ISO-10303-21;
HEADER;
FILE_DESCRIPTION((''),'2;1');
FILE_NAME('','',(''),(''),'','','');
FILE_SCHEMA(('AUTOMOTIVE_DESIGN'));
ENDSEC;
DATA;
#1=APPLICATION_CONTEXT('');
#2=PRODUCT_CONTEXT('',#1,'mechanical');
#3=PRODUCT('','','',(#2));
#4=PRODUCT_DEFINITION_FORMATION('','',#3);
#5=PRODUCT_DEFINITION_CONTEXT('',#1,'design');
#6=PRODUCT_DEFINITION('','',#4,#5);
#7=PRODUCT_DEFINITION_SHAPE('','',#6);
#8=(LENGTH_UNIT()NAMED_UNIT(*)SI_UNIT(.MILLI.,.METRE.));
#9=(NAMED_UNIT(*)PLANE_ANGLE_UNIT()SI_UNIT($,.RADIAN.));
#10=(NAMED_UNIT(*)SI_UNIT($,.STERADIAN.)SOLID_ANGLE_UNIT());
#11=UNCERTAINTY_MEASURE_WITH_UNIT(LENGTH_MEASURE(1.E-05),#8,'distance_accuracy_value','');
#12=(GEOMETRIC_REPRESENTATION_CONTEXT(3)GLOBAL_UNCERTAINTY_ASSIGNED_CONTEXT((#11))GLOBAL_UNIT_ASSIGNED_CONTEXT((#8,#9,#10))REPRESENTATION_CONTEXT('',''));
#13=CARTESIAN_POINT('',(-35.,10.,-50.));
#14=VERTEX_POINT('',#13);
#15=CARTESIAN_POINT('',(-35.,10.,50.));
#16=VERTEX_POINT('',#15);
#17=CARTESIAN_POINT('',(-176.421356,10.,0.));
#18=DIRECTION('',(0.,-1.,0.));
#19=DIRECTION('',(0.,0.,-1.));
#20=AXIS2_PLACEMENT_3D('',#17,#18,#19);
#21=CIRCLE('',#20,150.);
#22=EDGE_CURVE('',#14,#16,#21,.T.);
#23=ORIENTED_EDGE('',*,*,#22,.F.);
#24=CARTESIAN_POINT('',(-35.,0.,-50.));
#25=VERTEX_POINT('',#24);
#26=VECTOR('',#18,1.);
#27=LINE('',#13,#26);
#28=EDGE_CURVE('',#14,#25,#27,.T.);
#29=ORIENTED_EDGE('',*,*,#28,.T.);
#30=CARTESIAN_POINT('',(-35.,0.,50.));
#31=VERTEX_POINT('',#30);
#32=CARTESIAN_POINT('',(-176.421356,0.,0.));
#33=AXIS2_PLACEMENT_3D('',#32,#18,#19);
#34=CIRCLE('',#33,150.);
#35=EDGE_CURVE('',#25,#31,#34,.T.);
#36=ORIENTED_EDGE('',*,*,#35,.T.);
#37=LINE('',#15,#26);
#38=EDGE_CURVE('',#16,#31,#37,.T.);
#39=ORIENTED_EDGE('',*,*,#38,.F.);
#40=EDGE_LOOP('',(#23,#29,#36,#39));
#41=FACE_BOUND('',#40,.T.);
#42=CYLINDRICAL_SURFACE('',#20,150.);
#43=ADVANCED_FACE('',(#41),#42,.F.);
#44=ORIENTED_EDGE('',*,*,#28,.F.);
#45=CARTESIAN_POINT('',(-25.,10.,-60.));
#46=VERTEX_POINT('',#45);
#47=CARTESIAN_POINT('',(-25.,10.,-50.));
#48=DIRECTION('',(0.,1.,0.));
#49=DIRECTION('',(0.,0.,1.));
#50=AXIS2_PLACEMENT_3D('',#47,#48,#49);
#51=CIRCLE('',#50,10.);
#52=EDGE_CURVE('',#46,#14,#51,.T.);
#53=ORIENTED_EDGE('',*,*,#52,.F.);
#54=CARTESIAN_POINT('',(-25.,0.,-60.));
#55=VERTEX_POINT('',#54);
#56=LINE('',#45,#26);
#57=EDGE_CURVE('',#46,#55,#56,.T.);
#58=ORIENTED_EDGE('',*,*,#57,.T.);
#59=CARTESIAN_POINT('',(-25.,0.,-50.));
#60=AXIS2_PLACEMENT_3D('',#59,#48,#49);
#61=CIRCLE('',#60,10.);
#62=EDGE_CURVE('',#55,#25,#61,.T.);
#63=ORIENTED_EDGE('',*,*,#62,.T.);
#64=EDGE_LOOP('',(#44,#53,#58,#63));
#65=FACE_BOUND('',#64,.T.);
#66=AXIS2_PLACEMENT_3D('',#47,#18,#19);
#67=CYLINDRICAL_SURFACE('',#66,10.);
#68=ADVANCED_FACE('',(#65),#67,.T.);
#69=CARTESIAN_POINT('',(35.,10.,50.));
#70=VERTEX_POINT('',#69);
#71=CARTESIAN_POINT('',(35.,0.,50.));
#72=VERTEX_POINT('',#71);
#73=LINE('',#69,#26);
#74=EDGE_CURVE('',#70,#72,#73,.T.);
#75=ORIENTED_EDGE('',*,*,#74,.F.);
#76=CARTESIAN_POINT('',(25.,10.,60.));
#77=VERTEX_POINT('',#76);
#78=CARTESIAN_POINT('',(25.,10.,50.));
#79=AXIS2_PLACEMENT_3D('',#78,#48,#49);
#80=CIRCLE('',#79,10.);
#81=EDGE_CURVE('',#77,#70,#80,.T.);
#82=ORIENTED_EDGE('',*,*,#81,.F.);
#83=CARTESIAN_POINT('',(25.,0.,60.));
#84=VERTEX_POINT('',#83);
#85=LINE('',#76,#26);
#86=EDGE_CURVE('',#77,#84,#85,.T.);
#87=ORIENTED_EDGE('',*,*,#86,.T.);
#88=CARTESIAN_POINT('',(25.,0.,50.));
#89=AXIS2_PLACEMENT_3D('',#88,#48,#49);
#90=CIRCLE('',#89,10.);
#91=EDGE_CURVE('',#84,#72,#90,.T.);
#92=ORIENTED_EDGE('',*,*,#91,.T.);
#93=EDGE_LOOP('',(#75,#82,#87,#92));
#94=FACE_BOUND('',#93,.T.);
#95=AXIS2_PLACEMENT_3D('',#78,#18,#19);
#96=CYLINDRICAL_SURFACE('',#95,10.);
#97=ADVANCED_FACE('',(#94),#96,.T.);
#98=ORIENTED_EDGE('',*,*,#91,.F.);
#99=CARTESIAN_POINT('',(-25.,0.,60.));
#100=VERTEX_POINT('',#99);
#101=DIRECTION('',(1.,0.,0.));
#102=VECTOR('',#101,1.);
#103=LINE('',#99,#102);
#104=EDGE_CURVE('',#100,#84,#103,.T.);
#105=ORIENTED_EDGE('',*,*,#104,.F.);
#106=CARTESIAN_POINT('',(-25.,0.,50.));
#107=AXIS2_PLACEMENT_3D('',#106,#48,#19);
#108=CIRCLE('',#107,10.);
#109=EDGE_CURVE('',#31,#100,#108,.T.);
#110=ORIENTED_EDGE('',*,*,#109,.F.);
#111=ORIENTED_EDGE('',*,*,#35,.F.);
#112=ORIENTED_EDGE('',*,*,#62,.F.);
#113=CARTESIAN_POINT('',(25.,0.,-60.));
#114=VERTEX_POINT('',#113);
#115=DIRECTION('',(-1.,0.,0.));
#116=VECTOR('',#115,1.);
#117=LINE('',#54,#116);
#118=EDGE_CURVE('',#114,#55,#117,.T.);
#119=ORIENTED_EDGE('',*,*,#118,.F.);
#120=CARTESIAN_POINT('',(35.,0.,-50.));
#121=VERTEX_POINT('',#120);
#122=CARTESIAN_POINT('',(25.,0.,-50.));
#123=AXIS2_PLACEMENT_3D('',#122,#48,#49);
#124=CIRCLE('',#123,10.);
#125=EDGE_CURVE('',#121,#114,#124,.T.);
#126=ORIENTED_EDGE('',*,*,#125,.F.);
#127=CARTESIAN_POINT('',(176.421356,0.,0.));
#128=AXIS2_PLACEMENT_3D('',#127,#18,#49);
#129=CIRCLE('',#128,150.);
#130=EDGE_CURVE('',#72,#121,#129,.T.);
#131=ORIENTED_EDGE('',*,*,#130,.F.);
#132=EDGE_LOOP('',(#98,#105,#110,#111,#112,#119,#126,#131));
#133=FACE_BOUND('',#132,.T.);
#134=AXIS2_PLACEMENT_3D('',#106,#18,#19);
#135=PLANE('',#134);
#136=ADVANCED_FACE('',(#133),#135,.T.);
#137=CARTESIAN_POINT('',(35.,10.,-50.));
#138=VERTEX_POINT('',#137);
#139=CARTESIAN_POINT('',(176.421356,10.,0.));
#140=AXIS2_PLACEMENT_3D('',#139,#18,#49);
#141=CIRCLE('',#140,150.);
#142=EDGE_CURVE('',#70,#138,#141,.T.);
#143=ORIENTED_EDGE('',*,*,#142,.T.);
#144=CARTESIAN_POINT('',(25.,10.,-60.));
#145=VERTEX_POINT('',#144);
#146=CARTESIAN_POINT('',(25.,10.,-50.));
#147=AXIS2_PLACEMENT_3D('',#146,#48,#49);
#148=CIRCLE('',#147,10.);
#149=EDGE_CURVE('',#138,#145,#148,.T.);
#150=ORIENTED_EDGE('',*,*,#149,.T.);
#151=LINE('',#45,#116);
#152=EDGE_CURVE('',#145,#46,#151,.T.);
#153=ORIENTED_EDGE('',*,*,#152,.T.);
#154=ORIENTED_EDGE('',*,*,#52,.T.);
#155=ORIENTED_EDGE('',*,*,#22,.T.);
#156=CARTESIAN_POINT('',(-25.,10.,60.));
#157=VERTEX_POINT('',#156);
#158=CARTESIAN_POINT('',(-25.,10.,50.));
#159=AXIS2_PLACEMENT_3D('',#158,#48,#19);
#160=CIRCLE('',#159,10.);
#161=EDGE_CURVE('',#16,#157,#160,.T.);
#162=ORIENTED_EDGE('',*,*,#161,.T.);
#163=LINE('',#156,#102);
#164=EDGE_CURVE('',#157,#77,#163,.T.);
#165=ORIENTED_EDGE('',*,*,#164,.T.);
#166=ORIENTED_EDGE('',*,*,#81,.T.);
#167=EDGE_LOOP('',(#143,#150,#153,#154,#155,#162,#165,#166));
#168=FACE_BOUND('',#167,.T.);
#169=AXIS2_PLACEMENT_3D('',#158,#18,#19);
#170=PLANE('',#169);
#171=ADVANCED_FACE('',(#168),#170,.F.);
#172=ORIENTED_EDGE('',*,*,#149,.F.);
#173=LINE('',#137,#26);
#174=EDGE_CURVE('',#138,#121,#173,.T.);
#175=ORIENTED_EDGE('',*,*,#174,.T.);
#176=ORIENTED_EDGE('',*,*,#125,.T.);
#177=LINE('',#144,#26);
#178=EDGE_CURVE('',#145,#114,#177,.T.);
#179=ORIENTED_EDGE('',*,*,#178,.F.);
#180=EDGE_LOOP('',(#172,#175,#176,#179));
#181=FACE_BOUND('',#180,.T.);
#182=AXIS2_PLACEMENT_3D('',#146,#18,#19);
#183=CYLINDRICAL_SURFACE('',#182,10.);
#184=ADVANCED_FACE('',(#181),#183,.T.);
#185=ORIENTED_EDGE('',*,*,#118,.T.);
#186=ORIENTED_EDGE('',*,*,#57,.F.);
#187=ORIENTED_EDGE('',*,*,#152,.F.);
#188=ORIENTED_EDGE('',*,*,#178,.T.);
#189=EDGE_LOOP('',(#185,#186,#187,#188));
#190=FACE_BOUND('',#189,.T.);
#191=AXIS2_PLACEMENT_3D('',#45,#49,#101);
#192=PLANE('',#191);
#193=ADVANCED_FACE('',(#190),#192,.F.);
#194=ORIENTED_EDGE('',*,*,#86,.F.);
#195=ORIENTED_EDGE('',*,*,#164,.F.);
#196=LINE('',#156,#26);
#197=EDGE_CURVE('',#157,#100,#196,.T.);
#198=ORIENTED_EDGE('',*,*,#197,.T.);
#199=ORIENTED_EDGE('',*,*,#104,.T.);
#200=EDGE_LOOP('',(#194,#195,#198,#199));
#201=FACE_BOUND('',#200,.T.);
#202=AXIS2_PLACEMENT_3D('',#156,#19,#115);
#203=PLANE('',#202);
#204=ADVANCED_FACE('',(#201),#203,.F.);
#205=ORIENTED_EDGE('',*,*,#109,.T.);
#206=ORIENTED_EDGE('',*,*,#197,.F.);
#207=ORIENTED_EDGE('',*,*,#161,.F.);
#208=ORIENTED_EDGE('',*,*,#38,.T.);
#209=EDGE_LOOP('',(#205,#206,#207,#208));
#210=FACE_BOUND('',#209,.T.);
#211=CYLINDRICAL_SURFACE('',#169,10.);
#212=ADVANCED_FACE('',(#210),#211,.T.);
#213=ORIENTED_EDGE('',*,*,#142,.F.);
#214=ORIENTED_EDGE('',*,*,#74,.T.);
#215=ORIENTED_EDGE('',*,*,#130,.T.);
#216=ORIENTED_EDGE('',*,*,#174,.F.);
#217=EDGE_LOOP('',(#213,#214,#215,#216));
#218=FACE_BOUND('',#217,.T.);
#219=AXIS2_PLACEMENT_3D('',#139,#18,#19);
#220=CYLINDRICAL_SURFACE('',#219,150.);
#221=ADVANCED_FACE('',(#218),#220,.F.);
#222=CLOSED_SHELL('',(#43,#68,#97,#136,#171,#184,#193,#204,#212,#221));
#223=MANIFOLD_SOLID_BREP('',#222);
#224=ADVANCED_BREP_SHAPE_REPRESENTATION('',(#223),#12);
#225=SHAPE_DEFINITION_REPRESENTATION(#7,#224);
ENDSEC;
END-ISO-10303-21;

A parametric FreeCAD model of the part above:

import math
import FreeCAD as App
import Part
import Sketcher

V = App.Vector

doc = App.newDocument("Part")
body = doc.addObject("PartDesign::Body", "Body")

# Sketch on XZ plane
sketch1 = doc.addObject("Sketcher::SketchObject", "Sketch")
body.addObject(sketch1)
sketch1.AttachmentSupport = (doc.XZ_Plane, [""])
sketch1.MapMode = "FlatFace"
sketch1.addGeometry(Part.LineSegment(V(25, -60, 0), V(-25, -60, 0)), False)
sketch1.addGeometry(Part.ArcOfCircle(Part.Circle(V(-25, -50, 0), V(0, 0, 1), 10), math.radians(180), math.radians(270)), False)
sketch1.addGeometry(Part.ArcOfCircle(Part.Circle(V(-176.421356, 0, 0), V(0, 0, 1), 150), math.radians(-19.471221), math.radians(19.471221)), False)
sketch1.addGeometry(Part.ArcOfCircle(Part.Circle(V(-25, 50, 0), V(0, 0, 1), 10), math.radians(90), math.radians(180)), False)
sketch1.addGeometry(Part.LineSegment(V(-25, 60, 0), V(25, 60, 0)), False)
sketch1.addGeometry(Part.ArcOfCircle(Part.Circle(V(25, 50, 0), V(0, 0, 1), 10), math.radians(0), math.radians(90)), False)
sketch1.addGeometry(Part.ArcOfCircle(Part.Circle(V(176.421356, 0, 0), V(0, 0, 1), 150), math.radians(160.528779), math.radians(199.471221)), False)
sketch1.addGeometry(Part.ArcOfCircle(Part.Circle(V(25, -50, 0), V(0, 0, 1), 10), math.radians(-90), math.radians(0)), False)
sketch1.addConstraint(Sketcher.Constraint("Tangent", 0, 2, 1, 2))
sketch1.addConstraint(Sketcher.Constraint("Coincident", 1, 1, 2, 1))
sketch1.addConstraint(Sketcher.Constraint("Coincident", 2, 2, 3, 2))
sketch1.addConstraint(Sketcher.Constraint("Tangent", 3, 1, 4, 1))
sketch1.addConstraint(Sketcher.Constraint("Tangent", 4, 2, 5, 2))
sketch1.addConstraint(Sketcher.Constraint("Coincident", 5, 1, 6, 1))
sketch1.addConstraint(Sketcher.Constraint("Coincident", 6, 2, 7, 2))
sketch1.addConstraint(Sketcher.Constraint("Tangent", 7, 1, 0, 1))
sketch1.addConstraint(Sketcher.Constraint("Horizontal", 0))
sketch1.addConstraint(Sketcher.Constraint("Horizontal", 4))
sketch1.addConstraint(Sketcher.Constraint("Equal", 1, 3))
sketch1.addConstraint(Sketcher.Constraint("Equal", 3, 5))
sketch1.addConstraint(Sketcher.Constraint("Equal", 2, 6))
sketch1.addConstraint(Sketcher.Constraint("Equal", 5, 7))
sketch1.addConstraint(Sketcher.Constraint("Symmetric", 1, 3, 5, 3, -1, 1))
sketch1.addConstraint(Sketcher.Constraint("Symmetric", 2, 3, 6, 3, -1, 1))
sketch1.addConstraint(Sketcher.Constraint("Symmetric", 2, 2, 5, 1, -2))
sketch1.addConstraint(Sketcher.Constraint("Horizontal", 7, 3, 1, 1))
sketch1.addConstraint(Sketcher.Constraint("Horizontal", 1, 1, 6, 2))
sketch1.addConstraint(Sketcher.Constraint("Radius", 1, 10.0))
sketch1.addConstraint(Sketcher.Constraint("Radius", 2, 150.0))
sketch1.addConstraint(Sketcher.Constraint("DistanceX", 0, 2, 0, 1, 50.0))
sketch1.addConstraint(Sketcher.Constraint("DistanceY", 1, 3, -1, 1, 50.0))
pad1 = doc.addObject("PartDesign::Pad", "Pad")
body.addObject(pad1)
pad1.Profile = sketch1
pad1.Length = 10
pad1.Reversed = True

doc.recompute()
